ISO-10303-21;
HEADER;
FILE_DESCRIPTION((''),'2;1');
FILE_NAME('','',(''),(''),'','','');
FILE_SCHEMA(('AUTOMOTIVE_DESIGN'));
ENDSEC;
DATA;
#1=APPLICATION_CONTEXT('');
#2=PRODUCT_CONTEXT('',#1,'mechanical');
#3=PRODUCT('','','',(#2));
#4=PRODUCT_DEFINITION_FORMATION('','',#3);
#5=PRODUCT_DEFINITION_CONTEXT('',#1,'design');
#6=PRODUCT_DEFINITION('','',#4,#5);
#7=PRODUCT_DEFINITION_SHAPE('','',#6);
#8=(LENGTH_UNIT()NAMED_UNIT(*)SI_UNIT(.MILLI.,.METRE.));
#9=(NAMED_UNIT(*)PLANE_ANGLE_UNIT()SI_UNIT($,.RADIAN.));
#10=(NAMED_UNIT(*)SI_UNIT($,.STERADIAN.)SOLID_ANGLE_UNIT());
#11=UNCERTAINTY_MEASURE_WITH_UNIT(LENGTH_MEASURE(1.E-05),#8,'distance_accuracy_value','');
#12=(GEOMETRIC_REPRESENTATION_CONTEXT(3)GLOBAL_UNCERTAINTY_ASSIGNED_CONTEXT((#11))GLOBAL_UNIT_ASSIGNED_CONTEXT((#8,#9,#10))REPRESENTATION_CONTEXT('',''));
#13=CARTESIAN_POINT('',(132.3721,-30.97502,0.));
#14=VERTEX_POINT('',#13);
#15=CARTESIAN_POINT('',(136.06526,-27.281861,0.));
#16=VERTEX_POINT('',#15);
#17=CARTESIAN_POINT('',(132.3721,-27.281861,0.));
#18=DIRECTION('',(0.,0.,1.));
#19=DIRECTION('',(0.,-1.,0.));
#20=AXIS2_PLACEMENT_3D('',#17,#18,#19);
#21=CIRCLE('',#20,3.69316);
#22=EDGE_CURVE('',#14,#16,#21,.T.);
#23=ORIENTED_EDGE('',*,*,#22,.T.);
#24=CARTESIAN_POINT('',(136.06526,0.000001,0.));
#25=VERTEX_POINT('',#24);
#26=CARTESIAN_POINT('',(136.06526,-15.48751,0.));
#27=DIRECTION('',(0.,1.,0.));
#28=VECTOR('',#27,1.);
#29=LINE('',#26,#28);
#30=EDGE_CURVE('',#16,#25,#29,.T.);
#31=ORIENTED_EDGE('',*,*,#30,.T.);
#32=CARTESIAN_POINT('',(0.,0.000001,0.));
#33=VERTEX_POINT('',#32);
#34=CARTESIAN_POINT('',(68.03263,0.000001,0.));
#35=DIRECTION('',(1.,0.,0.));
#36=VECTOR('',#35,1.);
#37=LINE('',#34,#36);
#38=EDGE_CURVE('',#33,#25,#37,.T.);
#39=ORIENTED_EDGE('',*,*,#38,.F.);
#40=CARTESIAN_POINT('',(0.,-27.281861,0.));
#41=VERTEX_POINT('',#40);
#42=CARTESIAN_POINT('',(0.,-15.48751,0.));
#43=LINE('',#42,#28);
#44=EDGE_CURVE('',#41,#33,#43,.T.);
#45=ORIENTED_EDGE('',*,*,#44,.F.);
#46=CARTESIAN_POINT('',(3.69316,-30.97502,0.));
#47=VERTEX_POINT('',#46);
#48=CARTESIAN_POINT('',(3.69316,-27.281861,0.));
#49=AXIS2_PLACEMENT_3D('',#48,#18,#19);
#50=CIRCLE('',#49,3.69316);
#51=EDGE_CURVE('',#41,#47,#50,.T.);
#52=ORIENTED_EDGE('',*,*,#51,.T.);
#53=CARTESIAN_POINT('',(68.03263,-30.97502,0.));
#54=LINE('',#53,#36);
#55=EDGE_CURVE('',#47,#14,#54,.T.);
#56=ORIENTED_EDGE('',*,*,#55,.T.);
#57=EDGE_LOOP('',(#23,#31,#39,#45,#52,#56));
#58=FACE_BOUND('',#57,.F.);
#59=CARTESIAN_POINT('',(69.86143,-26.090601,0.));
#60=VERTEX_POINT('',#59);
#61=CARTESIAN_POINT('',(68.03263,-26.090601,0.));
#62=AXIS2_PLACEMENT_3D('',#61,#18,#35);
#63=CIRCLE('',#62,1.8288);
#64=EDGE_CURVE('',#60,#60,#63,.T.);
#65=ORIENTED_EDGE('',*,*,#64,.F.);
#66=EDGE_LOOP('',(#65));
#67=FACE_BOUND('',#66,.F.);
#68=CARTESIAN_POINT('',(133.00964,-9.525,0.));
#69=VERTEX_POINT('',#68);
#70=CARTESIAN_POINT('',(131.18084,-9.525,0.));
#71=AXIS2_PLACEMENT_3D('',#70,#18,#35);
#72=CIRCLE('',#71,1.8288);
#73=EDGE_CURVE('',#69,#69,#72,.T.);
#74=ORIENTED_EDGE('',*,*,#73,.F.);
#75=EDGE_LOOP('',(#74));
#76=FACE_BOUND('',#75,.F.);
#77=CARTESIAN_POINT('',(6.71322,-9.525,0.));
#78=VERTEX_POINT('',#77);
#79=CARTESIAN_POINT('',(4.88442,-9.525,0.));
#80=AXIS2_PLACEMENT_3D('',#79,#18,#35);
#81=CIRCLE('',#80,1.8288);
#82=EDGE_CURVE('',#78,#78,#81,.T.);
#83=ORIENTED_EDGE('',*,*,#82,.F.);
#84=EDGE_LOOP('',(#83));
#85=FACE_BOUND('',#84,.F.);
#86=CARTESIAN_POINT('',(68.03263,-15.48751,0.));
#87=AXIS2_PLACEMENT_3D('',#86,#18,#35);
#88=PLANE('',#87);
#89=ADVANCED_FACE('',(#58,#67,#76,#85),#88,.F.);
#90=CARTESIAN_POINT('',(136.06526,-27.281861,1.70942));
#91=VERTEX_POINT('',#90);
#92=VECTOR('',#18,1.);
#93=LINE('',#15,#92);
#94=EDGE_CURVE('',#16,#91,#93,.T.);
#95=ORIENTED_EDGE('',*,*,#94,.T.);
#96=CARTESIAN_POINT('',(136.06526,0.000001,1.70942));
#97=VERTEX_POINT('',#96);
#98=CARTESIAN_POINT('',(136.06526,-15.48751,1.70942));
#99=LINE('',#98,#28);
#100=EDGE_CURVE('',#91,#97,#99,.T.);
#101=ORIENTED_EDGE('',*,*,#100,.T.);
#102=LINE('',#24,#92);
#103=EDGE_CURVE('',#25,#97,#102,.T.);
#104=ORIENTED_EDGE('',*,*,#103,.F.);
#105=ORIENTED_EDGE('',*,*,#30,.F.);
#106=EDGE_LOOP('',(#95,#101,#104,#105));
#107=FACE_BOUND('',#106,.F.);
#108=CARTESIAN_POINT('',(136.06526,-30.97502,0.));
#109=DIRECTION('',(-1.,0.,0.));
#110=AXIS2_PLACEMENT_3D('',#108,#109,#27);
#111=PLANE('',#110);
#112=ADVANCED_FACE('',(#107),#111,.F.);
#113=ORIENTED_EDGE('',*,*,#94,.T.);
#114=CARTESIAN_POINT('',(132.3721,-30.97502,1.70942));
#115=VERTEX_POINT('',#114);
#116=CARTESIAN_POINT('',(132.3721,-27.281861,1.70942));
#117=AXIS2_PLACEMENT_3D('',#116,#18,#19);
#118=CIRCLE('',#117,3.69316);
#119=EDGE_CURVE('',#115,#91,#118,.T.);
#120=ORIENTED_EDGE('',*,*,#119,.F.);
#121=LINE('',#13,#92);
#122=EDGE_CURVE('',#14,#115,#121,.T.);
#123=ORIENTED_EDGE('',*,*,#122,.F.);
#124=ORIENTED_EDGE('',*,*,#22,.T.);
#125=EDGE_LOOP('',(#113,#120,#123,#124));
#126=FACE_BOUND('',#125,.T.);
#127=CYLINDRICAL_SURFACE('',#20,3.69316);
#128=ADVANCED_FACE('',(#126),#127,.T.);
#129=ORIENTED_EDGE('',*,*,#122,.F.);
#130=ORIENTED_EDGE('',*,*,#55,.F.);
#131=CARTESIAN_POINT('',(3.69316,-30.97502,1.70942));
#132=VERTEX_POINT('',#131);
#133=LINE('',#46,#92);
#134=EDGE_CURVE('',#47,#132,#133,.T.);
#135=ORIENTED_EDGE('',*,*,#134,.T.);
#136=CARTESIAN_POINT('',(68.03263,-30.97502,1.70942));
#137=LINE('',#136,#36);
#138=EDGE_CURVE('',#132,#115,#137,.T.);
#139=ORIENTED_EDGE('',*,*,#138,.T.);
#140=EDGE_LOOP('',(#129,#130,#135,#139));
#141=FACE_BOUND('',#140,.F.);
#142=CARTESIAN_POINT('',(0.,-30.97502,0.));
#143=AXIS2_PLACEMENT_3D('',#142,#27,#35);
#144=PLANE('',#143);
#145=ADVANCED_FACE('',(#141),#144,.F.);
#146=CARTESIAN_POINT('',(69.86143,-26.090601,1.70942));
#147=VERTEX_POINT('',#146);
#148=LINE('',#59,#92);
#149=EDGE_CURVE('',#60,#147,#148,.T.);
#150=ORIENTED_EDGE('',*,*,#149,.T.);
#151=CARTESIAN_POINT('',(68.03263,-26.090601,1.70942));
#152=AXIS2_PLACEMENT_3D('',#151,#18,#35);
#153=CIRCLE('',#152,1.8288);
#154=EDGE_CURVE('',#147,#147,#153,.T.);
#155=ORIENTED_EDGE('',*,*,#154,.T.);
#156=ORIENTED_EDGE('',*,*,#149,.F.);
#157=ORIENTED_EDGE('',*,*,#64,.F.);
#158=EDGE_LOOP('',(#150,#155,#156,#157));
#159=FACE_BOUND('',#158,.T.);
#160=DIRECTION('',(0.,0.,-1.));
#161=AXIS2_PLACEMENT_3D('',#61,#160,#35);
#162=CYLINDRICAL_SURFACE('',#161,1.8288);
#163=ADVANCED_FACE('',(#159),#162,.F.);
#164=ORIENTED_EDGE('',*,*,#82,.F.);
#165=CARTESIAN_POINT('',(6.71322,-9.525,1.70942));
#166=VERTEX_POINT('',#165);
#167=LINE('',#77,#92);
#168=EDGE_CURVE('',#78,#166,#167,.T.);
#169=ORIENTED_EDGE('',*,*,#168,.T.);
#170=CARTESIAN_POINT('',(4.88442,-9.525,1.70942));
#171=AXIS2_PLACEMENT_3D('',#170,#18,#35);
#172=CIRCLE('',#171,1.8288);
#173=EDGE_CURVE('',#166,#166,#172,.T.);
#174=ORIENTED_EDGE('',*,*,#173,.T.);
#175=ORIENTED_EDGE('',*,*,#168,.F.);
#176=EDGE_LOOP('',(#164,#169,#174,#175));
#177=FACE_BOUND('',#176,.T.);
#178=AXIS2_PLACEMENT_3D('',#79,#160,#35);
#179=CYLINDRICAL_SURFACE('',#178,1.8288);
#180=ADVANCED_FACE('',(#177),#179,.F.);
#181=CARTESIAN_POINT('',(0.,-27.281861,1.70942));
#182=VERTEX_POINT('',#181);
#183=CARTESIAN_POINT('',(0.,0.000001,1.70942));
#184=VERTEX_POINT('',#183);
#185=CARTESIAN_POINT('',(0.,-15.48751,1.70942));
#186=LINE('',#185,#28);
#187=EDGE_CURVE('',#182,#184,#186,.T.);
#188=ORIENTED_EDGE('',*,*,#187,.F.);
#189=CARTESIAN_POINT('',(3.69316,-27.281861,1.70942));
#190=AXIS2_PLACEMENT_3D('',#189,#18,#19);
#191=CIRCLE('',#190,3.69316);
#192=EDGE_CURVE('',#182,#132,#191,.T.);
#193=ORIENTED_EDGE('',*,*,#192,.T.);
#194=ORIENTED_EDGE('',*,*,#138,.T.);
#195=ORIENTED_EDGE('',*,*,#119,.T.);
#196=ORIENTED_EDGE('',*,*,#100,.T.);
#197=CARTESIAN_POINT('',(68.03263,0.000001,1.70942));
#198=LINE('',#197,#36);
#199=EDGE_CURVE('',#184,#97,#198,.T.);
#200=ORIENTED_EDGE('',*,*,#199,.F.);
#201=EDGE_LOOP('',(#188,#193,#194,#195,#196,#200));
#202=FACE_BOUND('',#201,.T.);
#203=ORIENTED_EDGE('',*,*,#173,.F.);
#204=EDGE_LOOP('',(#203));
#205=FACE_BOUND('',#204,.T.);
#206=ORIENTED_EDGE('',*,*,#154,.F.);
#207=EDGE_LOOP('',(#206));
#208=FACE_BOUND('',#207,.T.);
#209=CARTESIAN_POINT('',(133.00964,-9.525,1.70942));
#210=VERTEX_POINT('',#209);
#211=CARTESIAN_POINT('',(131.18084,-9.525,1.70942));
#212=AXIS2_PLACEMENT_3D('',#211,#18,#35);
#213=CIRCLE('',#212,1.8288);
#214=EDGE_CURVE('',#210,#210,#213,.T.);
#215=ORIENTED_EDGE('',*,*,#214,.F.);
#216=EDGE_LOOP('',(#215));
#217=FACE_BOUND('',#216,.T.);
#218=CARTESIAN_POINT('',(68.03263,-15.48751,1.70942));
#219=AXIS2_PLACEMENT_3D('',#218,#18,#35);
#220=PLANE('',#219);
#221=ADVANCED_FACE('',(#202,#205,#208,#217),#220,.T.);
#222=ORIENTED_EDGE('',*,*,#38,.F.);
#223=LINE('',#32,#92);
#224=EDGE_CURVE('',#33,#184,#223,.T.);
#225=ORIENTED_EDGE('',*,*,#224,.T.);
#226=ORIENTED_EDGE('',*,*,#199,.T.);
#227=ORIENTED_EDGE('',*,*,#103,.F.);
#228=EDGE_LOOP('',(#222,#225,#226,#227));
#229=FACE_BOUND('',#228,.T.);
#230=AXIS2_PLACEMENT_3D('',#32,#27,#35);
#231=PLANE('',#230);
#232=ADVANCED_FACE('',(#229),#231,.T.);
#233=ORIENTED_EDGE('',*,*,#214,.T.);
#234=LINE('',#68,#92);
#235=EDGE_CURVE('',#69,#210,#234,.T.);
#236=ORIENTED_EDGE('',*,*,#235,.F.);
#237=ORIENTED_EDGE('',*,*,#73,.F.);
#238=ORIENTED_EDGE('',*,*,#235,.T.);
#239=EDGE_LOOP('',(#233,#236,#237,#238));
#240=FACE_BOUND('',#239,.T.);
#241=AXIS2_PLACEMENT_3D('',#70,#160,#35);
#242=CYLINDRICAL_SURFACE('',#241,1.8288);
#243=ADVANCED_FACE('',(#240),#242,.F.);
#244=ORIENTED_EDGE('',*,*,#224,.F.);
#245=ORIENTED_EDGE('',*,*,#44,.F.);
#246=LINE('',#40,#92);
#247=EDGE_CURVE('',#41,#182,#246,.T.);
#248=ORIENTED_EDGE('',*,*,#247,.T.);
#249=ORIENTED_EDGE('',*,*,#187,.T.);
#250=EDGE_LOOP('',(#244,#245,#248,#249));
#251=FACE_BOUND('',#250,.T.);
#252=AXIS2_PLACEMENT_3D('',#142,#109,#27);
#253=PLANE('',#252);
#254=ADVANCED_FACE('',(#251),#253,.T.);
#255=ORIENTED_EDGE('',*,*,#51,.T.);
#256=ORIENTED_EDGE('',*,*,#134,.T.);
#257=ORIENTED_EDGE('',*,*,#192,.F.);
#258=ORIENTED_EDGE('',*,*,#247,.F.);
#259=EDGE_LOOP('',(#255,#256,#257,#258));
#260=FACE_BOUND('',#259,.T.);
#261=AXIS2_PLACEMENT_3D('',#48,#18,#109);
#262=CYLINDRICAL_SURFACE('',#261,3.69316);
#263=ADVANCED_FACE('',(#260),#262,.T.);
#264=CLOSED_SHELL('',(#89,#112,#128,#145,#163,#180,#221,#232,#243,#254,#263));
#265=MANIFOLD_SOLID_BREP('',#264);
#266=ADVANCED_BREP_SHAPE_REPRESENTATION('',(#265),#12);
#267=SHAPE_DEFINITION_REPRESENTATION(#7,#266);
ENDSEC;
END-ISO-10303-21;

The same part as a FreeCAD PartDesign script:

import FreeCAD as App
import Part
import Sketcher
Q = App.Units.Quantity


def edges_at(feature, points):
    """Names of the edges that pass closest to the given points."""
    edges = feature.Shape.Edges
    near = lambda p: min(range(len(edges)), key=lambda i: edges[i].distToShape(Part.Vertex(*p))[0])
    return sorted({f"Edge{near(p) + 1}" for p in points})


def add_polygon(sketch, points):
    """Adds a closed chain of lines whose ends are joined by coincident constraints."""
    first, n = sketch.GeometryCount, len(points)
    for a, b in zip(points, points[1:] + points[:1]):
        sketch.addGeometry(Part.LineSegment(App.Vector(*a, 0), App.Vector(*b, 0)), False)
    for i in range(n):
        sketch.addConstraint(Sketcher.Constraint("Coincident", first + i, 2, first + (i + 1) % n, 1))

doc = App.newDocument("Part")
body = doc.addObject("PartDesign::Body", "Body")

# Sketch on XY plane
sketch1 = body.newObject("Sketcher::SketchObject", "Sketch")
sketch1.AttachmentSupport = (doc.getObject("XY_Plane"), [""])
sketch1.MapMode = "FlatFace"
add_polygon(sketch1, [(0, 0), (0, -30.97502), (136.06526, -30.97502), (136.06526, 0)])  # lines 0-3
sketch1.addGeometry(Part.Circle(App.Vector(68.03263, -26.090601, 0), App.Vector(0, 0, 1), 1.8288), False)  # 4
sketch1.addGeometry(Part.Circle(App.Vector(4.88442, -9.525, 0), App.Vector(0, 0, 1), 1.8288), False)  # 5
sketch1.addGeometry(Part.Circle(App.Vector(131.18084, -9.525, 0), App.Vector(0, 0, 1), 1.8288), False)  # 6
sketch1.addConstraint(Sketcher.Constraint("Vertical", 0))
sketch1.addConstraint(Sketcher.Constraint("Horizontal", 1))
sketch1.addConstraint(Sketcher.Constraint("Vertical", 2))
sketch1.addConstraint(Sketcher.Constraint("Horizontal", 3))
sketch1.addConstraint(Sketcher.Constraint("Coincident", 3, 2, -1, 1))
sketch1.addConstraint(Sketcher.Constraint("Equal", 4, 5))
sketch1.addConstraint(Sketcher.Constraint("Equal", 5, 6))
sketch1.addConstraint(Sketcher.Constraint("Horizontal", 5, 3, 6, 3))
sketch1.addConstraint(Sketcher.Constraint("Diameter", 4, Q("0.144 in")))
sketch1.addConstraint(Sketcher.Constraint("DistanceX", 1, 1, 1, 2, Q("5.3569 in")))
sketch1.addConstraint(Sketcher.Constraint("DistanceY", 5, 3, -1, 1, Q("0.375 in")))
sketch1.addConstraint(Sketcher.Constraint("DistanceX", -1, 1, 5, 3, Q("0.1923 in")))
sketch1.addConstraint(Sketcher.Constraint("DistanceX", -1, 1, 6, 3, Q("5.1646 in")))
sketch1.addConstraint(Sketcher.Constraint("DistanceY", 0, 2, 4, 3, Q("0.1923 in")))
sketch1.addConstraint(Sketcher.Constraint("DistanceY", 0, 2, 0, 1, 30.975021))
sketch1.addConstraint(Sketcher.Constraint("DistanceX", -1, 1, 4, 3, 68.03263))
pad1 = body.newObject("PartDesign::Pad", "Pad")
pad1.Profile = sketch1
pad1.Length = Q("0.0673 in")
doc.recompute()

fillet = body.newObject("PartDesign::Fillet", "Fillet")
fillet.Base = (pad1, edges_at(pad1, [(0, -30.975, 0.855), (136.065, -30.975, 0.855)]))
fillet.Radius = Q("0.1454 in")

doc.recompute()
